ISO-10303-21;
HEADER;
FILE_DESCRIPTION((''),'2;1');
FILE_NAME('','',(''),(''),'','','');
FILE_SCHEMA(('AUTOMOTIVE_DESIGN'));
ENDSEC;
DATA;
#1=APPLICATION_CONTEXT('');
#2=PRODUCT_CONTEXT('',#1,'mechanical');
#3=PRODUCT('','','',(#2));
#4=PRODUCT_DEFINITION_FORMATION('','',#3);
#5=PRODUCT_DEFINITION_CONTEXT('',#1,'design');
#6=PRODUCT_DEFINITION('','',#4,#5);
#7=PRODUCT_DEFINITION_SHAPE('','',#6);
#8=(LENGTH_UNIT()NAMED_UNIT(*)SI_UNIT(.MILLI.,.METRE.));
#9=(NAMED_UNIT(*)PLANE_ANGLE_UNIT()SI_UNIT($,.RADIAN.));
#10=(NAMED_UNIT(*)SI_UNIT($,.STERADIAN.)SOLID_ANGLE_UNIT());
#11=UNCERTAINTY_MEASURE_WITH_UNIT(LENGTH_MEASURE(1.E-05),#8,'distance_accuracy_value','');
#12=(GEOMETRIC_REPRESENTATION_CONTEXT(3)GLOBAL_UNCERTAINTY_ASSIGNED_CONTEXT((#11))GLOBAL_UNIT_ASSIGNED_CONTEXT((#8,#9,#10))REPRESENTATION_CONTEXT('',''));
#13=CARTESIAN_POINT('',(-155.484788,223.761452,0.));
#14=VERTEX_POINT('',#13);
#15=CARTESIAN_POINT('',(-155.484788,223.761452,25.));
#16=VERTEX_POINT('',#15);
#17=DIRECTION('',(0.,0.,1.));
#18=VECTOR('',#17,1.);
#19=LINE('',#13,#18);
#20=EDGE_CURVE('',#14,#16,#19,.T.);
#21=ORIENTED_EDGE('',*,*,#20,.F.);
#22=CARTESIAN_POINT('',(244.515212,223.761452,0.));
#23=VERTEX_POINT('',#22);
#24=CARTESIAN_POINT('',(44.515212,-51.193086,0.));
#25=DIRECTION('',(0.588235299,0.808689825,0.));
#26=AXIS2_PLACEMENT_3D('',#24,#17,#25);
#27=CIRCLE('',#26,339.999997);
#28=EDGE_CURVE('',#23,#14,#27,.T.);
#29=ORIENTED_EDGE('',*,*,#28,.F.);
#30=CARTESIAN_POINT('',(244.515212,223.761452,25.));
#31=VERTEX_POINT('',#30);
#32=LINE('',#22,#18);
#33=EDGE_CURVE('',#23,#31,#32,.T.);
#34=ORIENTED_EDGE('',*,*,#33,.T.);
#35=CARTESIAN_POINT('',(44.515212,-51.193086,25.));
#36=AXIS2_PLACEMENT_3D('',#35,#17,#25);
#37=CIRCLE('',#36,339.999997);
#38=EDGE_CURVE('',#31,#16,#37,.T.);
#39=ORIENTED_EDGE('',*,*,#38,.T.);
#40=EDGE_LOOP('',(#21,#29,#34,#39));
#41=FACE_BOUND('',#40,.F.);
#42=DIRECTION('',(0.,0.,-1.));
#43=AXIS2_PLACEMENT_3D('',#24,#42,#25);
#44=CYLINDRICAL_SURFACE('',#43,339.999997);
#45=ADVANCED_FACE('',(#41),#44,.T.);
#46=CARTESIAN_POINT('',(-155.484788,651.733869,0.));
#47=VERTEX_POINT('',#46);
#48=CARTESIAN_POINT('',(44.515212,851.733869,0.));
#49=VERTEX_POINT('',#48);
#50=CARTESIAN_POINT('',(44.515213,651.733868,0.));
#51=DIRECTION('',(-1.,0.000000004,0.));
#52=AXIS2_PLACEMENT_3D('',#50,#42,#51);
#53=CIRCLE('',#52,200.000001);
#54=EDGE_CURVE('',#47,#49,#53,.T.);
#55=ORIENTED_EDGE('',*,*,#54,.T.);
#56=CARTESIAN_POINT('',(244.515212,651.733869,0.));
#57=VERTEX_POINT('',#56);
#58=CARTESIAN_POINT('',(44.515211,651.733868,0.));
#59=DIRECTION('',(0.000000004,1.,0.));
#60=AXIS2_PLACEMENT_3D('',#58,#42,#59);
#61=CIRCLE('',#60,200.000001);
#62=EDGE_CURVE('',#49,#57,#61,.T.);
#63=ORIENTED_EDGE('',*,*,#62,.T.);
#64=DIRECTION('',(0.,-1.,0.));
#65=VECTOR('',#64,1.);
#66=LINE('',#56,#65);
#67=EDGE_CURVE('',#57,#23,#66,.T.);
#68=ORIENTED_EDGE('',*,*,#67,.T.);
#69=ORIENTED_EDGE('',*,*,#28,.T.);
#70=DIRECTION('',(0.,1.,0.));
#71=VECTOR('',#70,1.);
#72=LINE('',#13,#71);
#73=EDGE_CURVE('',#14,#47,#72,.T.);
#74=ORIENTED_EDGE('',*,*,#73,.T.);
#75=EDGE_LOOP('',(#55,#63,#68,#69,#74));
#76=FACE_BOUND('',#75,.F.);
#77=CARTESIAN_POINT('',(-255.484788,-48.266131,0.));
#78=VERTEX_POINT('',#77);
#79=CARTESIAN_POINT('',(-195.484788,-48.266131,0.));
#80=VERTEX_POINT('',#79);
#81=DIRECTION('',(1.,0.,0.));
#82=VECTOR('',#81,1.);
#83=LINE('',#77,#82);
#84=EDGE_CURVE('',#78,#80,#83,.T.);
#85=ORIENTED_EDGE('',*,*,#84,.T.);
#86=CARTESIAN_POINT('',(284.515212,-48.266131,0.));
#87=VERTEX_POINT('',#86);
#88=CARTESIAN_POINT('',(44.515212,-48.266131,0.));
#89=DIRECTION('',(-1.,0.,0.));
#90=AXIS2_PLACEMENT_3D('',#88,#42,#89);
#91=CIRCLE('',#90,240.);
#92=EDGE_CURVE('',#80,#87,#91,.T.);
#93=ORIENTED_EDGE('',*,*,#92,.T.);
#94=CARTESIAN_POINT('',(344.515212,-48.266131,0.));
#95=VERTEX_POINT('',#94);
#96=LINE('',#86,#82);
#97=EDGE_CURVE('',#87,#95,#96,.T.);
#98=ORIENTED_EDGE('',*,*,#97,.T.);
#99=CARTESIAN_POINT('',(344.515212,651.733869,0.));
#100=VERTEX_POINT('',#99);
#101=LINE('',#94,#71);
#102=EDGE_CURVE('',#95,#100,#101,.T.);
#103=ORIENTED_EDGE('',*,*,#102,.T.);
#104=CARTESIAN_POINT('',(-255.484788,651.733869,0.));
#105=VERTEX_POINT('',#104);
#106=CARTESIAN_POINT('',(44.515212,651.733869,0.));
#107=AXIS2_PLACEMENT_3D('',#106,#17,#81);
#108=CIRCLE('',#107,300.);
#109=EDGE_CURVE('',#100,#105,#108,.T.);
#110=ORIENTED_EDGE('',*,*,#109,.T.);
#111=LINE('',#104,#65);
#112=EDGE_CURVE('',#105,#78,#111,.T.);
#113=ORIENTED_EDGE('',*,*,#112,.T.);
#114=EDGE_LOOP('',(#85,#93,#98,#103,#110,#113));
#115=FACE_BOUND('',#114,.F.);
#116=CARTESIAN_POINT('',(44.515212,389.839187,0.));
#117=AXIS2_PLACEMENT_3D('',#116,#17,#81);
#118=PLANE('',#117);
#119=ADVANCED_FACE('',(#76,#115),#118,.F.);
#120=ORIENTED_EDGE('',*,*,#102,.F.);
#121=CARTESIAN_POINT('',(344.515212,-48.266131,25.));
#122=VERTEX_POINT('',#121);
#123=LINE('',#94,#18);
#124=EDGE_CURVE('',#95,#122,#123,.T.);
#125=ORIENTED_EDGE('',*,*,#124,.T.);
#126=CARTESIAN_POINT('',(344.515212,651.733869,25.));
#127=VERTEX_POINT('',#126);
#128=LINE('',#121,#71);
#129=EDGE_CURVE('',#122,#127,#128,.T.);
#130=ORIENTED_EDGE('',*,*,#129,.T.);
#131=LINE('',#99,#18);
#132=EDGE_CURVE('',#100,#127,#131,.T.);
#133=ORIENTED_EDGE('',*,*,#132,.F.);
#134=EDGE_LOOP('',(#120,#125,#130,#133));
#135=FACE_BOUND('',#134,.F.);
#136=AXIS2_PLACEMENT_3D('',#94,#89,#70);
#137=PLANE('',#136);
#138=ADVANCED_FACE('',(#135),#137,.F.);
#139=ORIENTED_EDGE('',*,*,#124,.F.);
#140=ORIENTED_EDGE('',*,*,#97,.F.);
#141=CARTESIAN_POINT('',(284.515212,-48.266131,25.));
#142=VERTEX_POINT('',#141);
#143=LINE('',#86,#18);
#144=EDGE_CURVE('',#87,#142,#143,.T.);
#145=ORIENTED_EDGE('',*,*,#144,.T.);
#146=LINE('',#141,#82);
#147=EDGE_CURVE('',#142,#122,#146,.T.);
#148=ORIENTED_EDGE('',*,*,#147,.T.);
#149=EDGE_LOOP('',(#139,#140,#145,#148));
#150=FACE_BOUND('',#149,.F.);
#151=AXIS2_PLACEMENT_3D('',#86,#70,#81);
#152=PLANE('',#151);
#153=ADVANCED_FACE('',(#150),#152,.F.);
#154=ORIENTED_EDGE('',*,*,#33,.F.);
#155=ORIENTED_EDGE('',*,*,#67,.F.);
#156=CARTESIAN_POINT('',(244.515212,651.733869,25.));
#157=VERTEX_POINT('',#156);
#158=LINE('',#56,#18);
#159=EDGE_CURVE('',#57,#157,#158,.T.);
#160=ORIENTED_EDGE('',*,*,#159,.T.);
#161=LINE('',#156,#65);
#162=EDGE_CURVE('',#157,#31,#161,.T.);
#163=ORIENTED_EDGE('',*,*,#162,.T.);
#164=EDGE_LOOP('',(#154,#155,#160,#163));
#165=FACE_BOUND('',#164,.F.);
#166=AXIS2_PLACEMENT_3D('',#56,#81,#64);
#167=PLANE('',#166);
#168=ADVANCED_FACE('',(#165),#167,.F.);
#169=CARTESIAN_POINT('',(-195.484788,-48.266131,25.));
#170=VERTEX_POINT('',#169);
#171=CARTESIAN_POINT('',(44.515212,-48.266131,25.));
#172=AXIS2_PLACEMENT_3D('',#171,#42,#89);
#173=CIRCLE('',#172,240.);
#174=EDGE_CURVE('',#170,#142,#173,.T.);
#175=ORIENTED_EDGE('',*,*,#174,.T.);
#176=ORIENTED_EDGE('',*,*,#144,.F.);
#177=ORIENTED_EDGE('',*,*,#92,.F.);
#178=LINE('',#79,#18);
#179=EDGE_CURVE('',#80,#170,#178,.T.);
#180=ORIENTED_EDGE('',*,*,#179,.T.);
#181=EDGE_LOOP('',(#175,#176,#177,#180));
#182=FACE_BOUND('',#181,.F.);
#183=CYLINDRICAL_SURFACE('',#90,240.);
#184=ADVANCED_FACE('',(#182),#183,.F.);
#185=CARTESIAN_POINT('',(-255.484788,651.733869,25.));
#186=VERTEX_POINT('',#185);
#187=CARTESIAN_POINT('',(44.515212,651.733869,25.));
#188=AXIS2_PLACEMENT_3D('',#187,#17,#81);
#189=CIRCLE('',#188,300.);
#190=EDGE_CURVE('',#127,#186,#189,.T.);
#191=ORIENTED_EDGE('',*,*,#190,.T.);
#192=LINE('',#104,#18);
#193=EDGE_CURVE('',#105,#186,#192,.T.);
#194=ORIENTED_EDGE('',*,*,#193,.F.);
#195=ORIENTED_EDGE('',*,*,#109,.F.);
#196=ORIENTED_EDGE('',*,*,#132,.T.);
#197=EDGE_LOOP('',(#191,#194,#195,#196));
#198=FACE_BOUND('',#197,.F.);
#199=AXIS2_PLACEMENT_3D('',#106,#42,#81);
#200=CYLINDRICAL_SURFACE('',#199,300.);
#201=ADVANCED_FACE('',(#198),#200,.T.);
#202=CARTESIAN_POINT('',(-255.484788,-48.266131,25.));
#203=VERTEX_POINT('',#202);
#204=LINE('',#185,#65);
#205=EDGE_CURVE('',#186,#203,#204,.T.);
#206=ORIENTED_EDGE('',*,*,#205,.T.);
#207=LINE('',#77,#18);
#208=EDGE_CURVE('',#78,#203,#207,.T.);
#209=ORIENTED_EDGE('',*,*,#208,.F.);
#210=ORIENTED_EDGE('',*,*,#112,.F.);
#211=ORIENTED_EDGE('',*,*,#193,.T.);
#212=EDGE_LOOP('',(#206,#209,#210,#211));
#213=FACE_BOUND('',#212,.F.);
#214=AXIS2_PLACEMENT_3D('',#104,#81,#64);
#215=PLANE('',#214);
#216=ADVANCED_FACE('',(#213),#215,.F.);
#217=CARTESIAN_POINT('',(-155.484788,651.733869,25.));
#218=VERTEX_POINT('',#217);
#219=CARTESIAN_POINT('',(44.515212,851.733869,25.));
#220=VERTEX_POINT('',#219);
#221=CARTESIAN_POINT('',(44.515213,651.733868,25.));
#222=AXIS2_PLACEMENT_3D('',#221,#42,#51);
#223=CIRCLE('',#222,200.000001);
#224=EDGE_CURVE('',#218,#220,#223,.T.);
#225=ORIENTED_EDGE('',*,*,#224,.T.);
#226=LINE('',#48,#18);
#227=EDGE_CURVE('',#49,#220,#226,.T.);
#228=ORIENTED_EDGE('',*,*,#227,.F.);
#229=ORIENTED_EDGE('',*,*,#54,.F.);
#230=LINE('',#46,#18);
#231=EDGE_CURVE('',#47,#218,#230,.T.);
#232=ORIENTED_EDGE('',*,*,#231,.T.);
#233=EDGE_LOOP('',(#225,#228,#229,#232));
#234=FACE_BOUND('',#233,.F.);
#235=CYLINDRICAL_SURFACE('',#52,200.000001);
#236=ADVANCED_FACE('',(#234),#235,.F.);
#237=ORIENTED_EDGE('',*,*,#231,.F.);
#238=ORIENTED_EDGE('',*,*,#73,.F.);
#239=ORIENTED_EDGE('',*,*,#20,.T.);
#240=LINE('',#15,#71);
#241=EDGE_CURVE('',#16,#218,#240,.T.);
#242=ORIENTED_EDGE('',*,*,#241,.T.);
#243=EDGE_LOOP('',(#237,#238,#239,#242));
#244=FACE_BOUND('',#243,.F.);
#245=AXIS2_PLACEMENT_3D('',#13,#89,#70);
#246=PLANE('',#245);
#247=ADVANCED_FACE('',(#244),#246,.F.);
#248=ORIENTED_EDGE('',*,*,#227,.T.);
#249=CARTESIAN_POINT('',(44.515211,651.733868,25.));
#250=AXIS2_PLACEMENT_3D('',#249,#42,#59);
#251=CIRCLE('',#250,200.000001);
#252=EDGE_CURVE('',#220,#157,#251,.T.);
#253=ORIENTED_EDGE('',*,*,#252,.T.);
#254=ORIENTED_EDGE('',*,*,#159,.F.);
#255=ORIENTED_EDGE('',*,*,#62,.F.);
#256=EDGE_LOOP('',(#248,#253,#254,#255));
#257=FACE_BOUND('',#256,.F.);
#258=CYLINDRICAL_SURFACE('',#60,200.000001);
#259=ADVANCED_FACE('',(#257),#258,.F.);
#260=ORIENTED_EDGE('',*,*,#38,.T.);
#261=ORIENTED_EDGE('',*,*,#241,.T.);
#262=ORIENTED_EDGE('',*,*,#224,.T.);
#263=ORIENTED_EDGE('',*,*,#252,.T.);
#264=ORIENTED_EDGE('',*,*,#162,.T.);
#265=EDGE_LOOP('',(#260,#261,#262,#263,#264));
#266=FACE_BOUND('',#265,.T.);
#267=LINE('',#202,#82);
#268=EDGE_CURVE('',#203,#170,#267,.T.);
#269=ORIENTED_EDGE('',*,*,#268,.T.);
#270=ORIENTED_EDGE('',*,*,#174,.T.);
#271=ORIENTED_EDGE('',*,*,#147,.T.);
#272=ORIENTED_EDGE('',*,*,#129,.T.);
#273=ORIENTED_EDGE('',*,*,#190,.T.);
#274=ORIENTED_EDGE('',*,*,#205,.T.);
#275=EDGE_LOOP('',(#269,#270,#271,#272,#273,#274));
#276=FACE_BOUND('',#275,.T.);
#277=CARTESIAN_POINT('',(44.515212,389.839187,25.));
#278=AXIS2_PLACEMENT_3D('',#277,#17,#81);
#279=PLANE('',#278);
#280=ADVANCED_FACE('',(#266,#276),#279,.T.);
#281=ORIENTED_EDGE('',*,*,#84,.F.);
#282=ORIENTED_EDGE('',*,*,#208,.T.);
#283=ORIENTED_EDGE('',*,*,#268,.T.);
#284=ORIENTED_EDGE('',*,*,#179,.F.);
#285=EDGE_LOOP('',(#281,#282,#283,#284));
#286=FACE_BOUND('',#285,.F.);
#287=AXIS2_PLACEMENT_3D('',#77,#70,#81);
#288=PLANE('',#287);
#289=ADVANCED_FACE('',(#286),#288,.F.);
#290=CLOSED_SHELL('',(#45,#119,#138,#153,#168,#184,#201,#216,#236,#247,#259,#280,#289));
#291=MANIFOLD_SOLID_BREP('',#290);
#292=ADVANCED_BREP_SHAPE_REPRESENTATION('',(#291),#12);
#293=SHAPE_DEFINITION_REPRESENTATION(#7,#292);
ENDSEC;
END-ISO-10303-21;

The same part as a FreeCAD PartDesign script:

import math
import FreeCAD as App
import Part
import Sketcher

V = App.Vector
Q = App.Units.Quantity

doc = App.newDocument("Part")
body = doc.addObject("PartDesign::Body", "Body")

# Sketch on XY plane
sketch1 = body.newObject("Sketcher::SketchObject", "Sketch")
sketch1.AttachmentSupport = (doc.getObject("XY_Plane"), [""])
sketch1.MapMode = "FlatFace"
sketch1.addGeometry([
    Part.LineSegment(V(-255, 652, 0), V(-255, -48, 0)),  # 0
    Part.LineSegment(V(-255, -48, 0), V(-195, -48, 0)),  # 1
    Part.ArcOfCircle(Part.Circle(V(45, -48, 0), V(0, 0, 1), 240), math.radians(0), math.radians(180)),  # 2
    Part.LineSegment(V(285, -48, 0), V(345, -48, 0)),  # 3
    Part.LineSegment(V(345, -48, 0), V(345, 652, 0)),  # 4
    Part.ArcOfCircle(Part.Circle(V(45, 652, 0), V(0, 0, 1), 300), math.radians(0), math.radians(180)),  # 5
    Part.ArcOfCircle(Part.Circle(V(45, -51, 0), V(0, 0, 1), 340), math.radians(54), math.radians(126)),  # 6
    Part.LineSegment(V(-155, 224, 0), V(-155, 652, 0)),  # 7
    Part.ArcOfCircle(Part.Circle(V(45, 652, 0), V(0, 0, 1), 200), math.radians(90), math.radians(180)),  # 8
    Part.ArcOfCircle(Part.Circle(V(45, 652, 0), V(0, 0, 1), 200), math.radians(0), math.radians(90)),  # 9
    Part.LineSegment(V(245, 652, 0), V(245, 224, 0)),  # 10
], False)
sketch1.addConstraint([
    Sketcher.Constraint("Coincident", 0, 2, 1, 1),
    Sketcher.Constraint("Coincident", 1, 2, 2, 2),
    Sketcher.Constraint("Coincident", 2, 1, 3, 1),
    Sketcher.Constraint("Coincident", 3, 2, 4, 1),
    Sketcher.Constraint("Tangent", 4, 2, 5, 1),
    Sketcher.Constraint("Tangent", 5, 2, 0, 1),
    Sketcher.Constraint("Coincident", 6, 2, 7, 1),
    Sketcher.Constraint("Tangent", 7, 2, 8, 2),
    Sketcher.Constraint("Tangent", 8, 1, 9, 2),
    Sketcher.Constraint("Tangent", 9, 1, 10, 1),
    Sketcher.Constraint("Coincident", 10, 2, 6, 1),
    Sketcher.Constraint("Vertical", 0),
    Sketcher.Constraint("Horizontal", 1),
    Sketcher.Constraint("Horizontal", 3),
    Sketcher.Constraint("Vertical", 4),
    Sketcher.Constraint("Vertical", 7),
    Sketcher.Constraint("Vertical", 10),
    Sketcher.Constraint("Coincident", 8, 3, 5, 3),
    Sketcher.Constraint("Equal", 8, 9),
    Sketcher.Constraint("Horizontal", 2, 3, 0, 2),
    Sketcher.Constraint("Horizontal", 1, 2, 2, 1),
    Sketcher.Constraint("Horizontal", 6, 2, 10, 2),
    Sketcher.Constraint("Vertical", 2, 3, 5, 3),
    Sketcher.Constraint("Vertical", 9, 3, 8, 1),
    Sketcher.Constraint("Radius", 2, Q("240 mm")),
    Sketcher.Constraint("Radius", 5, Q("300 mm")),
    Sketcher.Constraint("Radius", 8, Q("200.000001 mm")),
    Sketcher.Constraint("DistanceY", 0, 2, 0, 1, Q("700 mm")),
    Sketcher.Constraint("Radius", 6, Q("339.999997 mm")),
    Sketcher.Constraint("DistanceY", 7, 1, 7, 2, Q("427.972417 mm")),
    Sketcher.Constraint("DistanceX", -1, 1, 2, 3, Q("44.515212 mm")),
    Sketcher.Constraint("DistanceY", 2, 3, -1, 1, Q("48.266131 mm")),
])
pad1 = body.newObject("PartDesign::Pad", "Pad")
pad1.Profile = sketch1
pad1.Length = 25

doc.recompute()
